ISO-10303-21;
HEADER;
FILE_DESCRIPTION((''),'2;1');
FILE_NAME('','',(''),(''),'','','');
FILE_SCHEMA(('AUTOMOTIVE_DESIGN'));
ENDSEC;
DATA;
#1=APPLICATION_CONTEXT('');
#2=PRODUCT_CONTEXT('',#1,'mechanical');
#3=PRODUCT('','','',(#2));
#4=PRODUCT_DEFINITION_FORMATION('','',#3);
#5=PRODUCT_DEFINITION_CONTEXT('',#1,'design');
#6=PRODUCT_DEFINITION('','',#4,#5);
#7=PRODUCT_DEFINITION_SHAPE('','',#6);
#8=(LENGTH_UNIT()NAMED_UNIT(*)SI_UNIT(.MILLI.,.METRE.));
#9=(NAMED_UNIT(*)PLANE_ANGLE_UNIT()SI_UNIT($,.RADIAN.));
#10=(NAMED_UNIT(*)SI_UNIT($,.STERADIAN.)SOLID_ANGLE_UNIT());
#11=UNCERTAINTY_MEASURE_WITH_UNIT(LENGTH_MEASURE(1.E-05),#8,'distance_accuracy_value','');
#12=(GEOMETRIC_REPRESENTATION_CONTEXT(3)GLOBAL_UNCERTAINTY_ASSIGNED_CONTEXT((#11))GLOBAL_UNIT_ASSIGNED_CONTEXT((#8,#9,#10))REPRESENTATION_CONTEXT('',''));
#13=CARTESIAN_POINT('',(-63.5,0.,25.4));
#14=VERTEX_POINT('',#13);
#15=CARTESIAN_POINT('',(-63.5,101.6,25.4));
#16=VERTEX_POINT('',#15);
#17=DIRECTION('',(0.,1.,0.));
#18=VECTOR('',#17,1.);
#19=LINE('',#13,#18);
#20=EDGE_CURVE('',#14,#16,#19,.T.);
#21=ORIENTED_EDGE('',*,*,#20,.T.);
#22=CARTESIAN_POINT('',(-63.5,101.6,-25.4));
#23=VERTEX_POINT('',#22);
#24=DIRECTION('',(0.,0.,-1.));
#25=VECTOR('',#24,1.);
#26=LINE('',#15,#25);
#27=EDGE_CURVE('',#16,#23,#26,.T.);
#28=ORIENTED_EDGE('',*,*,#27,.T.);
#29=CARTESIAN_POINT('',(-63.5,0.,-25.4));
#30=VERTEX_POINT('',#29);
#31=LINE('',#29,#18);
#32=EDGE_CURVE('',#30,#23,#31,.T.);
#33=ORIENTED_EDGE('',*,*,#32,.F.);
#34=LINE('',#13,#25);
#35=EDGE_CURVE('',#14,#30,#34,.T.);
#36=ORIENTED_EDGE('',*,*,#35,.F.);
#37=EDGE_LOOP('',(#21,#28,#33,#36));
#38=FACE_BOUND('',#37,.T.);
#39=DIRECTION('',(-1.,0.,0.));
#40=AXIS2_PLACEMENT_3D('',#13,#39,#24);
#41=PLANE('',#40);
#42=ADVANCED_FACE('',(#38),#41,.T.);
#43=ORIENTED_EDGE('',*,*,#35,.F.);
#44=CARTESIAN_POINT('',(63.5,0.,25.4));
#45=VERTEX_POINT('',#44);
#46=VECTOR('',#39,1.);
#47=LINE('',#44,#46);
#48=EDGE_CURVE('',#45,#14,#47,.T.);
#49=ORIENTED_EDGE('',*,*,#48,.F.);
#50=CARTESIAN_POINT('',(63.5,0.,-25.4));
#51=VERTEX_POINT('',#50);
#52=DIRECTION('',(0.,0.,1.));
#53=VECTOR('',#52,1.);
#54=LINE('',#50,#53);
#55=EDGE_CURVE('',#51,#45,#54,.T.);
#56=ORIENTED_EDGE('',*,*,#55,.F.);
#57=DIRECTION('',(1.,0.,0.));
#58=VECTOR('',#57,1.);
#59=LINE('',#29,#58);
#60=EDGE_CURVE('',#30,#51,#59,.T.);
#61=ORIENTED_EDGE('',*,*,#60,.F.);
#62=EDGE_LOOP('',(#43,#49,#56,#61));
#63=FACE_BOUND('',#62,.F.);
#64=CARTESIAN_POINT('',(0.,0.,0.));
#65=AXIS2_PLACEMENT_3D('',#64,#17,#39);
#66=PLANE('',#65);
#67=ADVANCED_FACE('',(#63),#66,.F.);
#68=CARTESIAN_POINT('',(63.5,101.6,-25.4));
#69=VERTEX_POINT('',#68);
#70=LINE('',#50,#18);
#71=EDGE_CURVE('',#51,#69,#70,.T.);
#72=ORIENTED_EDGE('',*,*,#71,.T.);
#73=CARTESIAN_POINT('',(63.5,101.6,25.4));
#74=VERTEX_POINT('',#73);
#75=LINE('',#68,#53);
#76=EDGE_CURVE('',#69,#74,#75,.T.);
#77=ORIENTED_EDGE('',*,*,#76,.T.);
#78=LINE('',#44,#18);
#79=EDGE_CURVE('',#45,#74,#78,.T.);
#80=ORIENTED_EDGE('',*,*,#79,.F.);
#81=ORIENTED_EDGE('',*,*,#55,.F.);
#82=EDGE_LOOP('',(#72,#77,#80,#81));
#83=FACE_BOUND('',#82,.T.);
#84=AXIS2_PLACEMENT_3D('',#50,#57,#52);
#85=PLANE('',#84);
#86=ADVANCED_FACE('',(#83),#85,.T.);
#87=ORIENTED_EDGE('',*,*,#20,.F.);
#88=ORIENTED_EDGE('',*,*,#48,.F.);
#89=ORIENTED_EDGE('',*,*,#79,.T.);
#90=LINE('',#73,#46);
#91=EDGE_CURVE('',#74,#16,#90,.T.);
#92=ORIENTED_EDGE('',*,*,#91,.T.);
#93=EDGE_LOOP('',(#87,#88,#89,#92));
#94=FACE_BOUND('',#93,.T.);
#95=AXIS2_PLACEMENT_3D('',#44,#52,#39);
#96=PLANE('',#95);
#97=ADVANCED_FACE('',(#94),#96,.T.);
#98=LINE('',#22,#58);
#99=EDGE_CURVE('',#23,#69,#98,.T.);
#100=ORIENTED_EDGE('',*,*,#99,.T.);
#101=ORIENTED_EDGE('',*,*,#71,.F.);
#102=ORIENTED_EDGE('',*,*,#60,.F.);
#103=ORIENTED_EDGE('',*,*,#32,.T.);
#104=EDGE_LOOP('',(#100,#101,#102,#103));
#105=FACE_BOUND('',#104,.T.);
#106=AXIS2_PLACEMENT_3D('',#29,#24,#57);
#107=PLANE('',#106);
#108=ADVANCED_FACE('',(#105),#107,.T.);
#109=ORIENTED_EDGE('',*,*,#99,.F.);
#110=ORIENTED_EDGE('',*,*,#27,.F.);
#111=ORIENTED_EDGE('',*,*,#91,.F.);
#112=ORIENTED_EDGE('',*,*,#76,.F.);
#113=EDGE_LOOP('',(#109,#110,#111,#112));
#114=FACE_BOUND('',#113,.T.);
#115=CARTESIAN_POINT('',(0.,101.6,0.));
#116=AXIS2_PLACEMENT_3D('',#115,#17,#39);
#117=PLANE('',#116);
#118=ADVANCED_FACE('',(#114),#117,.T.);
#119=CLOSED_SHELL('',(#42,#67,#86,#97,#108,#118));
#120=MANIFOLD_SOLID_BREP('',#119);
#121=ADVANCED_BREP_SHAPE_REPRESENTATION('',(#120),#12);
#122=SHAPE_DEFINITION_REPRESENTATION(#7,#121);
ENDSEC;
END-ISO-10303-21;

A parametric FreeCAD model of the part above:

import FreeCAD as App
import Part
import Sketcher

V = App.Vector
Q = App.Units.Quantity

doc = App.newDocument("Part")
body = doc.addObject("PartDesign::Body", "Body")

# Sketch on XZ plane
sketch1 = body.newObject("Sketcher::SketchObject", "Sketch")
sketch1.AttachmentSupport = (doc.getObject("XZ_Plane"), [""])
sketch1.MapMode = "FlatFace"
sketch1.addGeometry([
    Part.LineSegment(V(-64, 25, 0), V(64, 25, 0)),
    Part.LineSegment(V(64, 25, 0), V(64, -25, 0)),
    Part.LineSegment(V(64, -25, 0), V(-64, -25, 0)),
    Part.LineSegment(V(-64, -25, 0), V(-64, 25, 0)),
], False)
sketch1.addConstraint([
    Sketcher.Constraint("Coincident", 0, 2, 1, 1),
    Sketcher.Constraint("Coincident", 1, 2, 2, 1),
    Sketcher.Constraint("Coincident", 2, 2, 3, 1),
    Sketcher.Constraint("Coincident", 3, 2, 0, 1),
    Sketcher.Constraint("Horizontal", 0),
    Sketcher.Constraint("Vertical", 1),
    Sketcher.Constraint("Horizontal", 2),
    Sketcher.Constraint("Vertical", 3),
    Sketcher.Constraint("Symmetric", 0, 2, 2, 2, -1, 1),
    Sketcher.Constraint("DistanceX", 0, 1, 0, 2, Q("5 in")),
    Sketcher.Constraint("DistanceY", 1, 2, 1, 1, Q("2 in")),
])
pad1 = body.newObject("PartDesign::Pad", "Pad")
pad1.Profile = sketch1
pad1.Length = Q("4 in")
pad1.Reversed = True

doc.recompute()
